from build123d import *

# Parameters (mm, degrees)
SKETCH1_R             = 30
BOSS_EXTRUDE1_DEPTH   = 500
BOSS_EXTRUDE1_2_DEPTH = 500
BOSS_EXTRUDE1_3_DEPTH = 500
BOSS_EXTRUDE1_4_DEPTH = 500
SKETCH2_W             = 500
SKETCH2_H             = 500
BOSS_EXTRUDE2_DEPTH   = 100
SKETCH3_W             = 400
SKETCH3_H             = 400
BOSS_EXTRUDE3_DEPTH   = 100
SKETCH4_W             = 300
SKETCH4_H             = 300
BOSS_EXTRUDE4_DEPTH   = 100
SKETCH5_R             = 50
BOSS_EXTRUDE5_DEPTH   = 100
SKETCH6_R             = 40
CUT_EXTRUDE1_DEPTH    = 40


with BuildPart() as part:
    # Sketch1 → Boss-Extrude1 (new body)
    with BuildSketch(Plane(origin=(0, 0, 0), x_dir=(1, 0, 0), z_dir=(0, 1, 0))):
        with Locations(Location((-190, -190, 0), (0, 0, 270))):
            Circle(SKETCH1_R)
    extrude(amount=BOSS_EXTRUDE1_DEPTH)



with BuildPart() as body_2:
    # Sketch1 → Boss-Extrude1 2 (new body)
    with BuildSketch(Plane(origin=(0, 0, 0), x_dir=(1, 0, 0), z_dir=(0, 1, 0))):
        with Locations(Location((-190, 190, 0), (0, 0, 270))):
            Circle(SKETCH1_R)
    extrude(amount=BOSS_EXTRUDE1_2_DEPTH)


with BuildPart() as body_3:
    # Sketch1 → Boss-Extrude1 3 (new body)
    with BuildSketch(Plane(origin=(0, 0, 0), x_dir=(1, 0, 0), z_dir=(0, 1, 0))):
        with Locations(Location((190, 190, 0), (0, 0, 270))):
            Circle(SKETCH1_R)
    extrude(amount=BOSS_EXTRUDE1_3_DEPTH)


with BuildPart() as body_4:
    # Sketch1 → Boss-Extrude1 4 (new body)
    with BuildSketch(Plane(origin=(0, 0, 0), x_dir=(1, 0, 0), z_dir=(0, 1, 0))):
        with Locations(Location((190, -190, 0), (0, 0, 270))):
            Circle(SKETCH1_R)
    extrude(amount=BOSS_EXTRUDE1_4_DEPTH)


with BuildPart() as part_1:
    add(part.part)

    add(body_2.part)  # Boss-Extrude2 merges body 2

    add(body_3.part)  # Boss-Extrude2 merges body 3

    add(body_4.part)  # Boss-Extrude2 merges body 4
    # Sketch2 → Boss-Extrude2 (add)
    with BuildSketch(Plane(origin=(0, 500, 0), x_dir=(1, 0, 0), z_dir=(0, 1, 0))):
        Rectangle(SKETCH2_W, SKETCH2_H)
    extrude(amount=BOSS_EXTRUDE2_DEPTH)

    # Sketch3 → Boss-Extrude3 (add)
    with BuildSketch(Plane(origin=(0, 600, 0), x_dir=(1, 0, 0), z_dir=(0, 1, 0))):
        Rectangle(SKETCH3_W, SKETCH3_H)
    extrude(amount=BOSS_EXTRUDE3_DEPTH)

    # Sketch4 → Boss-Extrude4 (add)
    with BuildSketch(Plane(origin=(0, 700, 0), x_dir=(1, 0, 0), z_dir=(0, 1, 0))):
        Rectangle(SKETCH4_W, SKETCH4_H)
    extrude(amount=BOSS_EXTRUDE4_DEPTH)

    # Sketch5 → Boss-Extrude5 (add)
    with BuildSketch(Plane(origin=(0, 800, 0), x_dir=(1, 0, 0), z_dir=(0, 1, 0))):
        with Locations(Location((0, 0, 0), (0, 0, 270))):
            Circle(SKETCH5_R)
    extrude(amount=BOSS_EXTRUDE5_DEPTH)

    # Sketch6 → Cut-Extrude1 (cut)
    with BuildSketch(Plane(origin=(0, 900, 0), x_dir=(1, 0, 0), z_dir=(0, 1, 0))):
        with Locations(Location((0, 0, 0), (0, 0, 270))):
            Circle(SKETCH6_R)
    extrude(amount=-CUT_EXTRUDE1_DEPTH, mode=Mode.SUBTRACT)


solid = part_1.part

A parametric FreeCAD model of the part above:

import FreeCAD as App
import Part
import Sketcher

doc = App.newDocument("Part")
body = doc.addObject("PartDesign::Body", "Body")

sketch1 = body.newObject("Sketcher::SketchObject", "Sketch")
sketch1.AttachmentSupport = (doc.getObject("XZ_Plane"), [""])
sketch1.MapMode = "FlatFace"
sketch1.addGeometry(Part.Circle(App.Vector(-190, 190, 0), App.Vector(0, 0, 1), 30), False)
sketch1.addConstraint([
    Sketcher.Constraint("Diameter", 0, 60.0),
    Sketcher.Constraint("DistanceX", 0, 3, -1, 1, 190.0),
    Sketcher.Constraint("DistanceY", -1, 1, 0, 3, 190.0),
])
pad1 = body.newObject("PartDesign::Pad", "Pad")
pad1.Profile = sketch1
pad1.Length = 500
pad1.Reversed = True
body2 = doc.addObject("PartDesign::Body", "Body001")

sketch2 = body2.newObject("Sketcher::SketchObject", "Sketch001")
sketch2.AttachmentSupport = (doc.getObject("XZ_Plane001"), [""])
sketch2.MapMode = "FlatFace"
sketch2.addGeometry(Part.Circle(App.Vector(-190, -190, 0), App.Vector(0, 0, 1), 30), False)
sketch2.addConstraint([
    Sketcher.Constraint("Diameter", 0, 60.0),
    Sketcher.Constraint("DistanceX", 0, 3, -1, 1, 190.0),
    Sketcher.Constraint("DistanceY", 0, 3, -1, 1, 190.0),
])
pad2 = body2.newObject("PartDesign::Pad", "Pad001")
pad2.Profile = sketch2
pad2.Length = 500
pad2.Reversed = True
body3 = doc.addObject("PartDesign::Body", "Body002")

sketch3 = body3.newObject("Sketcher::SketchObject", "Sketch002")
sketch3.AttachmentSupport = (doc.getObject("XZ_Plane002"), [""])
sketch3.MapMode = "FlatFace"
sketch3.addGeometry(Part.Circle(App.Vector(190, -190, 0), App.Vector(0, 0, 1), 30), False)
sketch3.addConstraint([
    Sketcher.Constraint("Diameter", 0, 60.0),
    Sketcher.Constraint("DistanceX", -1, 1, 0, 3, 190.0),
    Sketcher.Constraint("DistanceY", 0, 3, -1, 1, 190.0),
])
pad3 = body3.newObject("PartDesign::Pad", "Pad002")
pad3.Profile = sketch3
pad3.Length = 500
pad3.Reversed = True
body4 = doc.addObject("PartDesign::Body", "Body003")

sketch4 = body4.newObject("Sketcher::SketchObject", "Sketch003")
sketch4.AttachmentSupport = (doc.getObject("XZ_Plane003"), [""])
sketch4.MapMode = "FlatFace"
sketch4.addGeometry(Part.Circle(App.Vector(190, 190, 0), App.Vector(0, 0, 1), 30), False)
sketch4.addConstraint([
    Sketcher.Constraint("Diameter", 0, 60.0),
    Sketcher.Constraint("DistanceX", -1, 1, 0, 3, 190.0),
    Sketcher.Constraint("DistanceY", -1, 1, 0, 3, 190.0),
])
pad4 = body4.newObject("PartDesign::Pad", "Pad003")
pad4.Profile = sketch4
pad4.Length = 500
pad4.Reversed = True
body.AllowCompound = True
doc.recompute()

boolean = body.newObject("PartDesign::Boolean", "Boolean")
boolean.Type = "Fuse"
boolean.addObjects([body2])
doc.recompute()

boolean2 = body.newObject("PartDesign::Boolean", "Boolean001")
boolean2.Type = "Fuse"
boolean2.addObjects([body3])
doc.recompute()

boolean3 = body.newObject("PartDesign::Boolean", "Boolean002")
boolean3.Type = "Fuse"
boolean3.addObjects([body4])

sketch5 = body.newObject("Sketcher::SketchObject", "Sketch004")
sketch5.AttachmentSupport = (doc.getObject("XZ_Plane"), [""])
sketch5.MapMode = "FlatFace"
sketch5.AttachmentOffset = App.Placement(App.Vector(0, 0, -500), App.Rotation())
sketch5.addGeometry([
    Part.LineSegment(App.Vector(-250, -250, 0), App.Vector(-250, 250, 0)),
    Part.LineSegment(App.Vector(-250, 250, 0), App.Vector(250, 250, 0)),
    Part.LineSegment(App.Vector(250, 250, 0), App.Vector(250, -250, 0)),
    Part.LineSegment(App.Vector(250, -250, 0), App.Vector(-250, -250, 0)),
], False)
sketch5.addConstraint([
    Sketcher.Constraint("Coincident", 0, 2, 1, 1),
    Sketcher.Constraint("Coincident", 1, 2, 2, 1),
    Sketcher.Constraint("Coincident", 2, 2, 3, 1),
    Sketcher.Constraint("Coincident", 3, 2, 0, 1),
    Sketcher.Constraint("Vertical", 0),
    Sketcher.Constraint("Horizontal", 1),
    Sketcher.Constraint("Vertical", 2),
    Sketcher.Constraint("Horizontal", 3),
    Sketcher.Constraint("Symmetric", 0, 2, 2, 2, -1, 1),
    Sketcher.Constraint("Equal", 3, 0),
    Sketcher.Constraint("DistanceX", 1, 1, 1, 2, 500.0),
])
pad5 = body.newObject("PartDesign::Pad", "Pad004")
pad5.Profile = sketch5
pad5.Length = 100
pad5.Reversed = True

sketch6 = body.newObject("Sketcher::SketchObject", "Sketch005")
sketch6.AttachmentSupport = (doc.getObject("XZ_Plane"), [""])
sketch6.MapMode = "FlatFace"
sketch6.AttachmentOffset = App.Placement(App.Vector(0, 0, -600), App.Rotation())
sketch6.addGeometry([
    Part.LineSegment(App.Vector(-200, -200, 0), App.Vector(-200, 200, 0)),
    Part.LineSegment(App.Vector(-200, 200, 0), App.Vector(200, 200, 0)),
    Part.LineSegment(App.Vector(200, 200, 0), App.Vector(200, -200, 0)),
    Part.LineSegment(App.Vector(200, -200, 0), App.Vector(-200, -200, 0)),
], False)
sketch6.addConstraint([
    Sketcher.Constraint("Coincident", 0, 2, 1, 1),
    Sketcher.Constraint("Coincident", 1, 2, 2, 1),
    Sketcher.Constraint("Coincident", 2, 2, 3, 1),
    Sketcher.Constraint("Coincident", 3, 2, 0, 1),
    Sketcher.Constraint("Vertical", 0),
    Sketcher.Constraint("Horizontal", 1),
    Sketcher.Constraint("Vertical", 2),
    Sketcher.Constraint("Horizontal", 3),
    Sketcher.Constraint("Symmetric", 0, 2, 2, 2, -1, 1),
    Sketcher.Constraint("Equal", 3, 0),
    Sketcher.Constraint("DistanceX", 1, 1, 1, 2, 400.0),
])
pad6 = body.newObject("PartDesign::Pad", "Pad005")
pad6.Profile = sketch6
pad6.Length = 100
pad6.Reversed = True

sketch7 = body.newObject("Sketcher::SketchObject", "Sketch006")
sketch7.AttachmentSupport = (doc.getObject("XZ_Plane"), [""])
sketch7.MapMode = "FlatFace"
sketch7.AttachmentOffset = App.Placement(App.Vector(0, 0, -700), App.Rotation())
sketch7.addGeometry([
    Part.LineSegment(App.Vector(-150, -150, 0), App.Vector(-150, 150, 0)),
    Part.LineSegment(App.Vector(-150, 150, 0), App.Vector(150, 150, 0)),
    Part.LineSegment(App.Vector(150, 150, 0), App.Vector(150, -150, 0)),
    Part.LineSegment(App.Vector(150, -150, 0), App.Vector(-150, -150, 0)),
], False)
sketch7.addConstraint([
    Sketcher.Constraint("Coincident", 0, 2, 1, 1),
    Sketcher.Constraint("Coincident", 1, 2, 2, 1),
    Sketcher.Constraint("Coincident", 2, 2, 3, 1),
    Sketcher.Constraint("Coincident", 3, 2, 0, 1),
    Sketcher.Constraint("Vertical", 0),
    Sketcher.Constraint("Horizontal", 1),
    Sketcher.Constraint("Vertical", 2),
    Sketcher.Constraint("Horizontal", 3),
    Sketcher.Constraint("Symmetric", 0, 2, 2, 2, -1, 1),
    Sketcher.Constraint("Equal", 3, 0),
    Sketcher.Constraint("DistanceX", 1, 1, 1, 2, 300.0),
])
pad7 = body.newObject("PartDesign::Pad", "Pad006")
pad7.Profile = sketch7
pad7.Length = 100
pad7.Reversed = True

sketch8 = body.newObject("Sketcher::SketchObject", "Sketch007")
sketch8.AttachmentSupport = (doc.getObject("XZ_Plane"), [""])
sketch8.MapMode = "FlatFace"
sketch8.AttachmentOffset = App.Placement(App.Vector(0, 0, -800), App.Rotation())
sketch8.addGeometry(Part.Circle(App.Vector(0, 0, 0), App.Vector(0, 0, 1), 50), False)
sketch8.addConstraint([
    Sketcher.Constraint("Coincident", 0, 3, -1, 1),
    Sketcher.Constraint("Diameter", 0, 100.0),
])
pad8 = body.newObject("PartDesign::Pad", "Pad007")
pad8.Profile = sketch8
pad8.Length = 100
pad8.Reversed = True

sketch9 = body.newObject("Sketcher::SketchObject", "Sketch008")
sketch9.AttachmentSupport = (doc.getObject("XZ_Plane"), [""])
sketch9.MapMode = "FlatFace"
sketch9.AttachmentOffset = App.Placement(App.Vector(0, 0, -900), App.Rotation())
sketch9.addGeometry(Part.Circle(App.Vector(0, 0, 0), App.Vector(0, 0, 1), 40), False)
sketch9.addConstraint([
    Sketcher.Constraint("Coincident", 0, 3, -1, 1),
    Sketcher.Constraint("Diameter", 0, 80.0),
])
pocket1 = body.newObject("PartDesign::Pocket", "Pocket")
pocket1.Profile = sketch9
pocket1.Length = 40
pocket1.Reversed = True

doc.recompute()
